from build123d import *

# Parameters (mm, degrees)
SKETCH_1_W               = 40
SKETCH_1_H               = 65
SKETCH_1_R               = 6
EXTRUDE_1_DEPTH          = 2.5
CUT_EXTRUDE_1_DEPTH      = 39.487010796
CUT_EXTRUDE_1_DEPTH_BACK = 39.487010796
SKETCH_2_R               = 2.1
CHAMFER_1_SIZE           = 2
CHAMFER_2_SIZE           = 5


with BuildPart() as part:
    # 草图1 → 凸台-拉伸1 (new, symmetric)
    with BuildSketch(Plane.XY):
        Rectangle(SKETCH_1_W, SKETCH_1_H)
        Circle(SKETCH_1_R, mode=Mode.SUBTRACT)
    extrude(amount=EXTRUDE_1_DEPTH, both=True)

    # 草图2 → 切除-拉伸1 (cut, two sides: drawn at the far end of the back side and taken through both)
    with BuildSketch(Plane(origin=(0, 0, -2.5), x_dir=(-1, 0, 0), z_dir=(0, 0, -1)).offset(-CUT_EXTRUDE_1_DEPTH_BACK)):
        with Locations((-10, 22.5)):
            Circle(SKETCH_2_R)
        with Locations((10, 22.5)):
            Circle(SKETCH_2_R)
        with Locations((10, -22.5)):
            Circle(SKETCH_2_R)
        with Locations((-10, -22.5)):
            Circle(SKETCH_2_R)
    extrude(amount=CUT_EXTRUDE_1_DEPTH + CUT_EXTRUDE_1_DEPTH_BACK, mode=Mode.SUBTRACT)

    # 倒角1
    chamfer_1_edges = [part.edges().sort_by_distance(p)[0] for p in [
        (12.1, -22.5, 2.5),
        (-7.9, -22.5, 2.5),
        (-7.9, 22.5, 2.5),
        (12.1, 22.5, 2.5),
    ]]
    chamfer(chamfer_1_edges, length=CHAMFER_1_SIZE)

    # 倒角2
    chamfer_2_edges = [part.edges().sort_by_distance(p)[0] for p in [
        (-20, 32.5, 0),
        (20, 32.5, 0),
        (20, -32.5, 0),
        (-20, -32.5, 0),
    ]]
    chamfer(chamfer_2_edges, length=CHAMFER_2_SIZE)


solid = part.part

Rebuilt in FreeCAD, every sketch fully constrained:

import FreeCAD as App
import Part
import Sketcher


def edges_at(feature, points):
    """Names of the edges that pass closest to the given points."""
    edges = feature.Shape.Edges
    near = lambda p: min(range(len(edges)), key=lambda i: edges[i].distToShape(Part.Vertex(*p))[0])
    return sorted({f"Edge{near(p) + 1}" for p in points})


def add_polygon(sketch, points):
    """Adds a closed chain of lines whose ends are joined by coincident constraints."""
    first, n = sketch.GeometryCount, len(points)
    for a, b in zip(points, points[1:] + points[:1]):
        sketch.addGeometry(Part.LineSegment(App.Vector(*a, 0), App.Vector(*b, 0)), False)
    for i in range(n):
        sketch.addConstraint(Sketcher.Constraint("Coincident", first + i, 2, first + (i + 1) % n, 1))

doc = App.newDocument("Part")
params = doc.addObject("Spreadsheet::Sheet", "Params")
for row, (alias, value) in enumerate([
    ("sketch1_diameter", "12 mm"),
    ("sketch1_width", "40 mm"),
    ("sketch1_height", "65 mm"),
    ("pad1_length", "5 mm"),
    ("sketch2_diameter", "4.2 mm"),
    ("chamfer_size", "2 mm"),
    ("chamfer2_size", "5 mm"),
], start=1):
    params.set(f"A{row}", alias)
    params.set(f"B{row}", "=" + value)
    params.setAlias(f"B{row}", alias)

body = doc.addObject("PartDesign::Body", "Body")

# Sketch on XY plane
sketch1 = body.newObject("Sketcher::SketchObject", "Sketch")
sketch1.AttachmentSupport = (doc.getObject("XY_Plane"), [""])
sketch1.MapMode = "FlatFace"
add_polygon(sketch1, [(-20, 32.5), (-20, -32.5), (20, -32.5), (20, 32.5)])  # lines 0-3
sketch1.addGeometry(Part.Circle(App.Vector(0, 0, 0), App.Vector(0, 0, 1), 6), False)  # 4
sketch1.addConstraint(Sketcher.Constraint("Vertical", 0))
sketch1.addConstraint(Sketcher.Constraint("Horizontal", 1))
sketch1.addConstraint(Sketcher.Constraint("Vertical", 2))
sketch1.addConstraint(Sketcher.Constraint("Horizontal", 3))
sketch1.addConstraint(Sketcher.Constraint("Coincident", 4, 3, -1, 1))
sketch1.addConstraint(Sketcher.Constraint("Symmetric", 0, 2, 2, 2, -1, 1))
sketch1.addConstraint(Sketcher.Constraint("Diameter", 4, 12.0))
sketch1.addConstraint(Sketcher.Constraint("DistanceX", 1, 1, 1, 2, 40.0))
sketch1.addConstraint(Sketcher.Constraint("DistanceY", 0, 2, 0, 1, 65.0))
sketch1.setExpression("Constraints[10]", "Params.sketch1_diameter")
sketch1.setExpression("Constraints[11]", "Params.sketch1_width")
sketch1.setExpression("Constraints[12]", "Params.sketch1_height")
pad1 = body.newObject("PartDesign::Pad", "Pad")
pad1.Profile = sketch1
pad1.setExpression("Length", "Params.pad1_length")
pad1.Midplane = True

# Sketch on XY plane
sketch2 = body.newObject("Sketcher::SketchObject", "Sketch001")
sketch2.AttachmentSupport = (doc.getObject("XY_Plane"), [""])
sketch2.MapMode = "FlatFace"
sketch2.AttachmentOffset = App.Placement(App.Vector(0, 0, -2.5), App.Rotation())
sketch2.addGeometry(Part.Circle(App.Vector(10, 22.5, 0), App.Vector(0, 0, 1), 2.1), False)
sketch2.addGeometry(Part.Circle(App.Vector(-10, 22.5, 0), App.Vector(0, 0, 1), 2.1), False)
sketch2.addGeometry(Part.Circle(App.Vector(-10, -22.5, 0), App.Vector(0, 0, 1), 2.1), False)
sketch2.addGeometry(Part.Circle(App.Vector(10, -22.5, 0), App.Vector(0, 0, 1), 2.1), False)
sketch2.addConstraint(Sketcher.Constraint("Equal", 0, 1))
sketch2.addConstraint(Sketcher.Constraint("Equal", 1, 2))
sketch2.addConstraint(Sketcher.Constraint("Equal", 2, 3))
sketch2.addConstraint(Sketcher.Constraint("Symmetric", 0, 3, 2, 3, -1, 1))
sketch2.addConstraint(Sketcher.Constraint("Symmetric", 1, 3, 3, 3, -1, 1))
sketch2.addConstraint(Sketcher.Constraint("Symmetric", 0, 3, 1, 3, -2))
sketch2.addConstraint(Sketcher.Constraint("Diameter", 0, 4.2))
sketch2.addConstraint(Sketcher.Constraint("DistanceX", -1, 1, 0, 3, 10.0))
sketch2.addConstraint(Sketcher.Constraint("DistanceY", 2, 3, 1, 3, 45.0))
sketch2.setExpression("Constraints[6]", "Params.sketch2_diameter")
pocket1 = body.newObject("PartDesign::Pocket", "Pocket")
pocket1.Profile = sketch2
pocket1.Type = "ThroughAll"
pocket1.Midplane = True
doc.recompute()

chamfer = body.newObject("PartDesign::Chamfer", "Chamfer")
chamfer.Base = (pocket1, edges_at(pocket1, [
    (12.1, -22.5, 2.5),
    (-7.9, -22.5, 2.5),
    (-7.9, 22.5, 2.5),
    (12.1, 22.5, 2.5),
]))
chamfer.setExpression("Size", "Params.chamfer_size")
doc.recompute()

chamfer2 = body.newObject("PartDesign::Chamfer", "Chamfer001")
chamfer2.Base = (chamfer, edges_at(chamfer, [
    (-20, 32.5, 0),
    (20, 32.5, 0),
    (20, -32.5, 0),
    (-20, -32.5, 0),
]))
chamfer2.setExpression("Size", "Params.chamfer2_size")

doc.recompute()
